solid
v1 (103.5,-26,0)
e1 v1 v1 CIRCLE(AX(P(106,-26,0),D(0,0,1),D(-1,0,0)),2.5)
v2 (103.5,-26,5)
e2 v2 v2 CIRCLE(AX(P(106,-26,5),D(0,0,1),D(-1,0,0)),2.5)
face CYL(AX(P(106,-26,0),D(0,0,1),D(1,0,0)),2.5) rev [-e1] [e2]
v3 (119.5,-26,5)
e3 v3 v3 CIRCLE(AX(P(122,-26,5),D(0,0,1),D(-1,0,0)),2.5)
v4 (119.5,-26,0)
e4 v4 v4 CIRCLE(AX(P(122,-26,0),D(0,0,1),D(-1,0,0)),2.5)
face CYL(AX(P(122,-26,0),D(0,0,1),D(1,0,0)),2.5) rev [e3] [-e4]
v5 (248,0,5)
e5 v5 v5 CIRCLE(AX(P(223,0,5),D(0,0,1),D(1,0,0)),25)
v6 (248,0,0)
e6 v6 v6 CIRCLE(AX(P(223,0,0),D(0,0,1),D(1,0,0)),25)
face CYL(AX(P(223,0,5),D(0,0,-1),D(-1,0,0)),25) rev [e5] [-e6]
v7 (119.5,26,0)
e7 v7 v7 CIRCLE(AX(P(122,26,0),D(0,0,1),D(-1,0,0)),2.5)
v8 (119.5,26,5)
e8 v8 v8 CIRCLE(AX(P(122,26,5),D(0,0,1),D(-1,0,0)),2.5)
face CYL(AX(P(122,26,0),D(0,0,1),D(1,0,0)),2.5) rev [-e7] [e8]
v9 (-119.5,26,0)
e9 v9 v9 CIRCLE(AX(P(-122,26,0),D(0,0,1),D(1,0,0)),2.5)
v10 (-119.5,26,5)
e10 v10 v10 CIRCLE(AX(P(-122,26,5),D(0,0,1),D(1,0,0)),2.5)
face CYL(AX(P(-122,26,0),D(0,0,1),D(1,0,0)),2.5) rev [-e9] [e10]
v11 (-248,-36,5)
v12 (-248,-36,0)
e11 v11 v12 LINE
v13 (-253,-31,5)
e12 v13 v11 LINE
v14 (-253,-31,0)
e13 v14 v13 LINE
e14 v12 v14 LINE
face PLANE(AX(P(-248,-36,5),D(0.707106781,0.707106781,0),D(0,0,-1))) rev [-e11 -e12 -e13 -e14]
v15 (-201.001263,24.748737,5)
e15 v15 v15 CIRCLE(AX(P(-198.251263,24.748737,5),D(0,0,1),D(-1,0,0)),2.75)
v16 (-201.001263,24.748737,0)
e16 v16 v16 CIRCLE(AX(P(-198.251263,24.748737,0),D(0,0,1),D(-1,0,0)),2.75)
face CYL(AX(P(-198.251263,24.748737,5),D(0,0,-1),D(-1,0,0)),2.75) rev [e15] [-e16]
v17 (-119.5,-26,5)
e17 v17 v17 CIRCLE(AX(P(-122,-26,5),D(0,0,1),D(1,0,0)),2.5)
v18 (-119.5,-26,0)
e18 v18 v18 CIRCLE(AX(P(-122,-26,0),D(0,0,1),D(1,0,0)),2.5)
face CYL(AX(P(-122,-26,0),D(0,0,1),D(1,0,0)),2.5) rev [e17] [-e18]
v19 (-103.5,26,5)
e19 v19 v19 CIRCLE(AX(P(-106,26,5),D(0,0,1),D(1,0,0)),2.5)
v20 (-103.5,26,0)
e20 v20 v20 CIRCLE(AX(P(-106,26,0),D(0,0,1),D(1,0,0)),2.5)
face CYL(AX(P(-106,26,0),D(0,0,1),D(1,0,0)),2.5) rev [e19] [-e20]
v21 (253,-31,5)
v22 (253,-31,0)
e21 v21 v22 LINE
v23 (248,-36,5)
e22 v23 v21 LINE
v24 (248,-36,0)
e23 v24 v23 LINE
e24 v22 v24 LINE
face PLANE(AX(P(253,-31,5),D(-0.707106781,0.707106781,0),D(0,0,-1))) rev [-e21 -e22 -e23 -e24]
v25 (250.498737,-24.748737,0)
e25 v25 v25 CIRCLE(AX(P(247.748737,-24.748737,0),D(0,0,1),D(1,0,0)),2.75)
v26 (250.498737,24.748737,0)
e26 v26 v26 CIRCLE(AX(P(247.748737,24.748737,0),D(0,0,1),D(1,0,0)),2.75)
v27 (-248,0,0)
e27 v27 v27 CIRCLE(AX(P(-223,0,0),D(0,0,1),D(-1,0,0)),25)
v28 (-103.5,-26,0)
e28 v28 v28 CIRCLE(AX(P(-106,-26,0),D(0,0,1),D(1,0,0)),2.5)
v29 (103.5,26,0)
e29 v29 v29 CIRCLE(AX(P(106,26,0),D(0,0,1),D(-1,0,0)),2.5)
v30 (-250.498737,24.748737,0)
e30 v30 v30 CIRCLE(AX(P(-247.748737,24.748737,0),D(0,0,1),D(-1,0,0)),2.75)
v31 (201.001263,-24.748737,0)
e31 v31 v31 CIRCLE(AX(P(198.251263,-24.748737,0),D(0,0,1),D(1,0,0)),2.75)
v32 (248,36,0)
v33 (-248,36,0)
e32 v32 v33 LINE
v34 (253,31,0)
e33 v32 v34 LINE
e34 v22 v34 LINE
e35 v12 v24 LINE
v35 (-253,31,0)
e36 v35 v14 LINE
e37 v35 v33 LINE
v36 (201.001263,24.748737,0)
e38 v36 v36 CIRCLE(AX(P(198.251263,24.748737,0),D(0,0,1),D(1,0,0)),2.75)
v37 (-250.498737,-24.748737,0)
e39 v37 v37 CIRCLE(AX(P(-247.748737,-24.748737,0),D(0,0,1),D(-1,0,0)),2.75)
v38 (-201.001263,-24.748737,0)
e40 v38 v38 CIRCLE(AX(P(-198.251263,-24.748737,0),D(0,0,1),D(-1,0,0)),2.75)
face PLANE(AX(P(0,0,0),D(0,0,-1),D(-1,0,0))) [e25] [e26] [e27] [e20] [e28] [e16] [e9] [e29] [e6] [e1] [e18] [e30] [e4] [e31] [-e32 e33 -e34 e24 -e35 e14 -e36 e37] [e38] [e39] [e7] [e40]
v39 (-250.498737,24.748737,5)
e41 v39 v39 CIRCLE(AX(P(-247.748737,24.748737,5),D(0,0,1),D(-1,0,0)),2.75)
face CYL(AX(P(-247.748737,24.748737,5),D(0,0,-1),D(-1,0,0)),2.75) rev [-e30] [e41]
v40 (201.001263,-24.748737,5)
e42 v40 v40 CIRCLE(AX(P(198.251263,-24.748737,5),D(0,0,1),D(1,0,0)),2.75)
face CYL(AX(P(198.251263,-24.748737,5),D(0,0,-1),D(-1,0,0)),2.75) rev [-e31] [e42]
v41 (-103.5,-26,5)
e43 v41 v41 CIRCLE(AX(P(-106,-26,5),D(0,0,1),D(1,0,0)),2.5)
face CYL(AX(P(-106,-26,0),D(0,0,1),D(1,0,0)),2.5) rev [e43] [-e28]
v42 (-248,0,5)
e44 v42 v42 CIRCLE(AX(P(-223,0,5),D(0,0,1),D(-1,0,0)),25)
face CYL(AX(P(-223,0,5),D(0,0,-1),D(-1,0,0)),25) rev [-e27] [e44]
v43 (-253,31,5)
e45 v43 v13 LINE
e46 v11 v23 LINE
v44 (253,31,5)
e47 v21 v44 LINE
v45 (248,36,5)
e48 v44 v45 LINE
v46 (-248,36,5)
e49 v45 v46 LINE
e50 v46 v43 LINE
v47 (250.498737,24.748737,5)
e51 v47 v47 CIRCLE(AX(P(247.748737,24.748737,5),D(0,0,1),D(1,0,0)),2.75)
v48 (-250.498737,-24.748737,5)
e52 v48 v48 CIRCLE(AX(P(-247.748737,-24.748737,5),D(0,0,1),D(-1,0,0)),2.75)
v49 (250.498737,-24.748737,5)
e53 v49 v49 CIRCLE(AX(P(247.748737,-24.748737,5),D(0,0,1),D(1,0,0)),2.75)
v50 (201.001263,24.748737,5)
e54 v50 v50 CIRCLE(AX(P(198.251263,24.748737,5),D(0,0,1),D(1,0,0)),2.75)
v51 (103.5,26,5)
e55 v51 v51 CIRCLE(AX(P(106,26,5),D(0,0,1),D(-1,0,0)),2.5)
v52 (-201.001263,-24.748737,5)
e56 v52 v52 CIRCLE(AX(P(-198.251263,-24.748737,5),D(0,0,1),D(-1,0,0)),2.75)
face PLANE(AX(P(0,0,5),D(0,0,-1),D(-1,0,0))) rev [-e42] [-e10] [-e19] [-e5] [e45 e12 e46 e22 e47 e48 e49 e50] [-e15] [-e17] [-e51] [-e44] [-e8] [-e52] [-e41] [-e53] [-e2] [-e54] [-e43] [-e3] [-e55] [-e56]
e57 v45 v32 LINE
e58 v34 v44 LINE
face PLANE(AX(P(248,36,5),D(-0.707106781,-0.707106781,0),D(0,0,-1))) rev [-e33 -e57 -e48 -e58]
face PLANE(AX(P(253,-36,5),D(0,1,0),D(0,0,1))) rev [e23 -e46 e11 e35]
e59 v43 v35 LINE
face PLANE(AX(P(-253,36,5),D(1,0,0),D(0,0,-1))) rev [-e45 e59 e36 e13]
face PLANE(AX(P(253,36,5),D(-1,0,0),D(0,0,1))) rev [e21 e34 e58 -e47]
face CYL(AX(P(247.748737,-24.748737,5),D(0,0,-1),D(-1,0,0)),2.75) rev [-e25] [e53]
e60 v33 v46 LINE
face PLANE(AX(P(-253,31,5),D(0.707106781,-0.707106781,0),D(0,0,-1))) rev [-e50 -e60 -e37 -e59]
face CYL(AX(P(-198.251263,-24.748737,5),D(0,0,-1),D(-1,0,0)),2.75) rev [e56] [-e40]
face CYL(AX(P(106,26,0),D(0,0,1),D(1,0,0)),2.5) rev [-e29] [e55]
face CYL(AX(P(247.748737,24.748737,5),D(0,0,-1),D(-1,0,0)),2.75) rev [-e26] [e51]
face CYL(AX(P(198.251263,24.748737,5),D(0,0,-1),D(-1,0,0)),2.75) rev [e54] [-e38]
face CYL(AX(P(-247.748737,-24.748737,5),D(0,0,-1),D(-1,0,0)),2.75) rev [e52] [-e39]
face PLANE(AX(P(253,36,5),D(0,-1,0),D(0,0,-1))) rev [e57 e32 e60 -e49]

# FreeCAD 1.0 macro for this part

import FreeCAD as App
import Part
import Sketcher

V = App.Vector


def edges_at(feature, points):
    """Names of the edges that pass closest to the given points."""
    edges = feature.Shape.Edges
    near = lambda p: min(range(len(edges)), key=lambda i: edges[i].distToShape(Part.Vertex(*p))[0])
    return sorted({f"Edge{near(p) + 1}" for p in points})

doc = App.newDocument("Part")
body = doc.addObject("PartDesign::Body", "Body")

# Sketch on XY plane
sketch1 = body.newObject("Sketcher::SketchObject", "Sketch")
sketch1.AttachmentSupport = (doc.getObject("XY_Plane"), [""])
sketch1.MapMode = "FlatFace"
sketch1.addGeometry([
    Part.LineSegment(V(-253, 36, 0), V(-253, -36, 0)),  # 0
    Part.LineSegment(V(-253, -36, 0), V(253, -36, 0)),  # 1
    Part.LineSegment(V(253, -36, 0), V(253, 36, 0)),  # 2
    Part.LineSegment(V(253, 36, 0), V(-253, 36, 0)),  # 3
    Part.Circle(V(-247.7, -24.7, 0), V(0, 0, 1), 2.8),  # 4
    Part.Circle(V(-198.3, -24.7, 0), V(0, 0, 1), 2.8),  # 5
    Part.Circle(V(-223, 0, 0), V(0, 0, 1), 25),  # 6
    Part.Circle(V(198.3, -24.7, 0), V(0, 0, 1), 2.8),  # 7
    Part.Circle(V(247.7, -24.7, 0), V(0, 0, 1), 2.8),  # 8
    Part.Circle(V(223, 0, 0), V(0, 0, 1), 25),  # 9
    Part.Circle(V(-247.7, 24.7, 0), V(0, 0, 1), 2.8),  # 10
    Part.Circle(V(-198.3, 24.7, 0), V(0, 0, 1), 2.8),  # 11
    Part.Circle(V(198.3, 24.7, 0), V(0, 0, 1), 2.8),  # 12
    Part.Circle(V(247.7, 24.7, 0), V(0, 0, 1), 2.8),  # 13
], False)
sketch1.addConstraint([
    Sketcher.Constraint("Coincident", 0, 2, 1, 1),
    Sketcher.Constraint("Coincident", 1, 2, 2, 1),
    Sketcher.Constraint("Coincident", 2, 2, 3, 1),
    Sketcher.Constraint("Coincident", 3, 2, 0, 1),
    Sketcher.Constraint("Vertical", 0),
    Sketcher.Constraint("Horizontal", 1),
    Sketcher.Constraint("Vertical", 2),
    Sketcher.Constraint("Horizontal", 3),
    Sketcher.Constraint("Equal", 4, 5),
    Sketcher.Constraint("Equal", 5, 7),
    Sketcher.Constraint("Equal", 7, 8),
    Sketcher.Constraint("Equal", 6, 9),
    Sketcher.Constraint("Equal", 8, 10),
    Sketcher.Constraint("Equal", 10, 11),
    Sketcher.Constraint("Equal", 11, 12),
    Sketcher.Constraint("Equal", 12, 13),
    Sketcher.Constraint("Symmetric", 6, 3, 9, 3, -1, 1),
    Sketcher.Constraint("Symmetric", 8, 3, 10, 3, -1, 1),
    Sketcher.Constraint("Symmetric", 7, 3, 11, 3, -1, 1),
    Sketcher.Constraint("Symmetric", 5, 3, 12, 3, -1, 1),
    Sketcher.Constraint("Symmetric", 4, 3, 13, 3, -1, 1),
    Sketcher.Constraint("Symmetric", 0, 2, 2, 2, -1, 1),
    Sketcher.Constraint("Symmetric", 5, 3, 7, 3, -2),
    Sketcher.Constraint("Symmetric", 4, 3, 8, 3, -2),
    Sketcher.Constraint("PointOnObject", 6, 3, -1),
    Sketcher.Constraint("Horizontal", 4, 3, 5, 3),
    Sketcher.Constraint("Diameter", 6, 50.0),
    Sketcher.Constraint("Diameter", 4, 5.5),
    Sketcher.Constraint("DistanceX", 1, 1, 1, 2, 506.0),
    Sketcher.Constraint("DistanceY", 0, 2, 0, 1, 72.0),
    Sketcher.Constraint("DistanceX", 6, 3, -1, 1, 223.0),
    Sketcher.Constraint("DistanceX", 4, 3, 7, 3, 446.0),
    Sketcher.Constraint("DistanceX", 4, 3, -1, 1, 247.748737),
    Sketcher.Constraint("DistanceY", 4, 3, -1, 1, 24.748737),
])
pad1 = body.newObject("PartDesign::Pad", "Pad")
pad1.Profile = sketch1
pad1.Length = 5
doc.recompute()

chamfer = body.newObject("PartDesign::Chamfer", "Chamfer")
chamfer.Base = (pad1, edges_at(pad1, [
    (-253, 36, 2.5),
    (253, 36, 2.5),
    (253, -36, 2.5),
    (-253, -36, 2.5),
]))
chamfer.Size = 5

# Sketch on XY plane
sketch2 = body.newObject("Sketcher::SketchObject", "Sketch001")
sketch2.AttachmentSupport = (doc.getObject("XY_Plane"), [""])
sketch2.MapMode = "FlatFace"
sketch2.AttachmentOffset = App.Placement(V(0, 0, 5), App.Rotation())
sketch2.addGeometry([
    Part.Circle(V(-122, 26, 0), V(0, 0, 1), 2.5),  # 0
    Part.Circle(V(-122, -26, 0), V(0, 0, 1), 2.5),  # 1
    Part.Circle(V(-106, 26, 0), V(0, 0, 1), 2.5),  # 2
    Part.Circle(V(-106, -26, 0), V(0, 0, 1), 2.5),  # 3
    Part.Circle(V(106, -26, 0), V(0, 0, 1), 2.5),  # 4
    Part.Circle(V(106, 26, 0), V(0, 0, 1), 2.5),  # 5
    Part.Circle(V(122, -26, 0), V(0, 0, 1), 2.5),  # 6
    Part.Circle(V(122, 26, 0), V(0, 0, 1), 2.5),  # 7
], False)
sketch2.addConstraint([
    Sketcher.Constraint("Equal", 0, 1),
    Sketcher.Constraint("Equal", 1, 2),
    Sketcher.Constraint("Equal", 2, 3),
    Sketcher.Constraint("Equal", 3, 4),
    Sketcher.Constraint("Equal", 4, 5),
    Sketcher.Constraint("Equal", 5, 6),
    Sketcher.Constraint("Equal", 6, 7),
    Sketcher.Constraint("Symmetric", 2, 3, 4, 3, -1, 1),
    Sketcher.Constraint("Symmetric", 3, 3, 5, 3, -1, 1),
    Sketcher.Constraint("Symmetric", 0, 3, 6, 3, -1, 1),
    Sketcher.Constraint("Symmetric", 1, 3, 7, 3, -1, 1),
    Sketcher.Constraint("Symmetric", 3, 3, 4, 3, -2),
    Sketcher.Constraint("Symmetric", 1, 3, 6, 3, -2),
    Sketcher.Constraint("Horizontal", 0, 3, 2, 3),
    Sketcher.Constraint("Diameter", 0, 5.0),
    Sketcher.Constraint("DistanceX", 0, 3, -1, 1, 122.0),
    Sketcher.Constraint("DistanceY", -1, 1, 0, 3, 26.0),
    Sketcher.Constraint("DistanceX", 2, 3, -1, 1, 106.0),
])
pocket1 = body.newObject("PartDesign::Pocket", "Pocket")
pocket1.Profile = sketch2
pocket1.Type = "ThroughAll"

doc.recompute()
